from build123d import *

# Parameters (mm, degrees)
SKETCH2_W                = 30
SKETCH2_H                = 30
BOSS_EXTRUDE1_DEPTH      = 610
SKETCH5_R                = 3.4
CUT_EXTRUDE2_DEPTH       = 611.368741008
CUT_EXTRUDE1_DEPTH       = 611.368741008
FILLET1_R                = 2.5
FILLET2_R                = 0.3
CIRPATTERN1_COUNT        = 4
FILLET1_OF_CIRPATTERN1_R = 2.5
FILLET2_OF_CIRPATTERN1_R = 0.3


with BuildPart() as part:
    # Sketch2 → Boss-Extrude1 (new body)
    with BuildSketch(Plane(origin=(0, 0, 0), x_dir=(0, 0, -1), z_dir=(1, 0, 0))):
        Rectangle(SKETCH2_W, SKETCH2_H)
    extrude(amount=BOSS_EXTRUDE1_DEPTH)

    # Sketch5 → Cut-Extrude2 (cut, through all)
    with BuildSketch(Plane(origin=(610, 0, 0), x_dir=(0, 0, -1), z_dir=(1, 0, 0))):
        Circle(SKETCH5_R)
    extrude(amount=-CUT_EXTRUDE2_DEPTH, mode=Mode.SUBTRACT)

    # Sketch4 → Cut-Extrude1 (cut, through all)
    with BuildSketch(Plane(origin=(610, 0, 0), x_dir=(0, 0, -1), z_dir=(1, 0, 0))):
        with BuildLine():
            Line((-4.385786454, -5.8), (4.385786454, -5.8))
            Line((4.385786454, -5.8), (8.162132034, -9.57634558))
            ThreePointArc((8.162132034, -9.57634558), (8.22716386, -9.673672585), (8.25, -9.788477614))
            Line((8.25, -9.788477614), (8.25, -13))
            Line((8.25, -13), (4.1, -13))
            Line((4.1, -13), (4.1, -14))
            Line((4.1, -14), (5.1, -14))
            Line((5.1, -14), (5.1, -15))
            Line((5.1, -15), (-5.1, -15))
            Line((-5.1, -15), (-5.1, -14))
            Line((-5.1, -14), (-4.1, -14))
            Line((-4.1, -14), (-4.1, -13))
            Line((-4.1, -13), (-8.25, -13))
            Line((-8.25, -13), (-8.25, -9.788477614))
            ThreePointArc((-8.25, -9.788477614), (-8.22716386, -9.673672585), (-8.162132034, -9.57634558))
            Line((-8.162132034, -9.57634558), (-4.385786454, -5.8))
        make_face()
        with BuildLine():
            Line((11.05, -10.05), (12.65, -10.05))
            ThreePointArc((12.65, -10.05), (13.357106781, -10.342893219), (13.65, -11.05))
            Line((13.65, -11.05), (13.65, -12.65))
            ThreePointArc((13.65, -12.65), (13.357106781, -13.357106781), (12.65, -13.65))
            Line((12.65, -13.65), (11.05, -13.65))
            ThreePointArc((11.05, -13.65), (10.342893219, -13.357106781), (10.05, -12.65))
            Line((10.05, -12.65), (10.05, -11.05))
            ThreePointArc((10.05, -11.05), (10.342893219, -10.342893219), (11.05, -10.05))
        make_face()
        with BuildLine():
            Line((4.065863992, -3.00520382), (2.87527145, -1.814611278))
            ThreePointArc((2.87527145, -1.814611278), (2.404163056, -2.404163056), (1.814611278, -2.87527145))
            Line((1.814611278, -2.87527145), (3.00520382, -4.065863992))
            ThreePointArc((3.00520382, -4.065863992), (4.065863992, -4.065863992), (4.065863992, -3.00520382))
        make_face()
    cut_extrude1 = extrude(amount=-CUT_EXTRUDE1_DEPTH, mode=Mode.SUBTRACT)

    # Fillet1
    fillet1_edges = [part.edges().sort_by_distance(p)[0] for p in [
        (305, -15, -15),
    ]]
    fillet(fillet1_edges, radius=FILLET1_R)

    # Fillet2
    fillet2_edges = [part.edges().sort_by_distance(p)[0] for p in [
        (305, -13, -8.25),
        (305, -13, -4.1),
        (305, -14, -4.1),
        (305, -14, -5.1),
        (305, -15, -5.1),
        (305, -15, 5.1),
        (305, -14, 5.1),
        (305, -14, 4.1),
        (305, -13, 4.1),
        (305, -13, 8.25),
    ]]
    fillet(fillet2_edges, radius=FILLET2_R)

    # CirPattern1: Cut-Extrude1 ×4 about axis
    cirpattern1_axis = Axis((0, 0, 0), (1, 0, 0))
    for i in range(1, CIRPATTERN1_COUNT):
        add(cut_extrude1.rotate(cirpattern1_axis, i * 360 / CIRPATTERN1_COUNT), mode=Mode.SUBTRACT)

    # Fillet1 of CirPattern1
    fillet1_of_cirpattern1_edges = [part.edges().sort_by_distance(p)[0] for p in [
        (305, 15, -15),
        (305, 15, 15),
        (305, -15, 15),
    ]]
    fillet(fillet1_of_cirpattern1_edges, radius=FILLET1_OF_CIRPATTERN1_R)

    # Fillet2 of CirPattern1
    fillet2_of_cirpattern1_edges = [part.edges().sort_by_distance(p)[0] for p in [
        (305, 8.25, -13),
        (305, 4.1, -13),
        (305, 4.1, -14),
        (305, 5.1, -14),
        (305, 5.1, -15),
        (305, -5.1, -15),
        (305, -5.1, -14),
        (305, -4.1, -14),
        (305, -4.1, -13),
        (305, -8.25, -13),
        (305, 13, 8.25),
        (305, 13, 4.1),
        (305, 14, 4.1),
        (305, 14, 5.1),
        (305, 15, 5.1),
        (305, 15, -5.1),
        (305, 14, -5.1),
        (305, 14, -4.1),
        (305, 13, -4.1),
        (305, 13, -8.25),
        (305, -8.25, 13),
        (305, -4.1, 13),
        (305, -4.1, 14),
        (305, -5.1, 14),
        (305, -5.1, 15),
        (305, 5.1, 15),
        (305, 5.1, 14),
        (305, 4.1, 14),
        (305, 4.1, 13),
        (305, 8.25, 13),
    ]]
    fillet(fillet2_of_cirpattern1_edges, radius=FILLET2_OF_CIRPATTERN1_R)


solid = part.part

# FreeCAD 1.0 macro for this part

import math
import FreeCAD as App
import Part
import Sketcher
Q = App.Units.Quantity


def edges_at(feature, points):
    """Names of the edges that pass closest to the given points."""
    edges = feature.Shape.Edges
    near = lambda p: min(range(len(edges)), key=lambda i: edges[i].distToShape(Part.Vertex(*p))[0])
    return sorted({f"Edge{near(p) + 1}" for p in points})

doc = App.newDocument("Part")
params = doc.addObject("Spreadsheet::Sheet", "Params")
for row, (alias, value) in enumerate([
    ("sketch1_width", "30 mm"),
    ("pad1_length", "610 mm"),
    ("sketch2_diameter", "6.8 mm"),
    ("sketch3_radius", "1 mm"),
    ("sketch3_radius2", "0.3 mm"),
    ("sketch3_radius3", "3.4 mm"),
    ("sketch3_width", "1 mm"),
    ("sketch3_radius4", "0.75 mm"),
    ("fillet_radius", "2.5 mm"),
    ("fillet2_radius", "0.3 mm"),
    ("fillet3_radius", "2.5 mm"),
    ("fillet4_radius", "0.3 mm"),
], start=1):
    params.set(f"A{row}", alias)
    params.set(f"B{row}", "=" + value)
    params.setAlias(f"B{row}", alias)

body = doc.addObject("PartDesign::Body", "Body")

sketch1 = body.newObject("Sketcher::SketchObject", "Sketch")
sketch1.AttachmentSupport = (doc.getObject("YZ_Plane"), [""])
sketch1.MapMode = "FlatFace"
sketch1.addGeometry([
    Part.LineSegment(App.Vector(15, 15, 0), App.Vector(-15, 15, 0)),
    Part.LineSegment(App.Vector(-15, 15, 0), App.Vector(-15, -15, 0)),
    Part.LineSegment(App.Vector(-15, -15, 0), App.Vector(15, -15, 0)),
    Part.LineSegment(App.Vector(15, -15, 0), App.Vector(15, 15, 0)),
], False)
sketch1.addConstraint([
    Sketcher.Constraint("Coincident", 0, 2, 1, 1),
    Sketcher.Constraint("Coincident", 1, 2, 2, 1),
    Sketcher.Constraint("Coincident", 2, 2, 3, 1),
    Sketcher.Constraint("Coincident", 3, 2, 0, 1),
    Sketcher.Constraint("Horizontal", 0),
    Sketcher.Constraint("Vertical", 1),
    Sketcher.Constraint("Horizontal", 2),
    Sketcher.Constraint("Vertical", 3),
    Sketcher.Constraint("Symmetric", 0, 2, 2, 2, -1, 1),
    Sketcher.Constraint("Equal", 2, 1),
    Sketcher.Constraint("DistanceX", 0, 2, 0, 1, Q("30 mm")),
])
sketch1.setExpression("Constraints[10]", "Params.sketch1_width")
pad1 = body.newObject("PartDesign::Pad", "Pad")
pad1.Profile = sketch1
pad1.setExpression("Length", "Params.pad1_length")

sketch2 = body.newObject("Sketcher::SketchObject", "Sketch001")
sketch2.AttachmentSupport = (doc.getObject("YZ_Plane"), [""])
sketch2.MapMode = "FlatFace"
sketch2.AttachmentOffset = App.Placement(App.Vector(0, 0, 610), App.Rotation())
sketch2.addGeometry(Part.Circle(App.Vector(0, 0, 0), App.Vector(0, 0, 1), 3.4), False)
sketch2.addConstraint([
    Sketcher.Constraint("Coincident", 0, 3, -1, 1),
    Sketcher.Constraint("Diameter", 0, Q("6.8 mm")),
])
sketch2.setExpression("Constraints[1]", "Params.sketch2_diameter")
pocket1 = body.newObject("PartDesign::Pocket", "Pocket")
pocket1.Profile = sketch2
pocket1.Type = "ThroughAll"

sketch3 = body.newObject("Sketcher::SketchObject", "Sketch002")
sketch3.AttachmentSupport = (doc.getObject("YZ_Plane"), [""])
sketch3.MapMode = "FlatFace"
sketch3.AttachmentOffset = App.Placement(App.Vector(0, 0, 610), App.Rotation())
sketch3.addGeometry([
    Part.LineSegment(App.Vector(-5.8, -4.39, 0), App.Vector(-5.8, 4.39, 0)),
    Part.LineSegment(App.Vector(-5.8, 4.39, 0), App.Vector(-9.58, 8.16, 0)),
    Part.ArcOfCircle(Part.Circle(App.Vector(-9.79, 7.95, 0), App.Vector(0, 0, 1), 0.3), math.radians(45), math.radians(90)),
    Part.LineSegment(App.Vector(-9.79, 8.25, 0), App.Vector(-13, 8.25, 0)),
    Part.LineSegment(App.Vector(-13, 8.25, 0), App.Vector(-13, 4.1, 0)),
    Part.LineSegment(App.Vector(-13, 4.1, 0), App.Vector(-14, 4.1, 0)),
    Part.LineSegment(App.Vector(-14, 4.1, 0), App.Vector(-14, 5.1, 0)),
    Part.LineSegment(App.Vector(-14, 5.1, 0), App.Vector(-15, 5.1, 0)),
    Part.LineSegment(App.Vector(-15, 5.1, 0), App.Vector(-15, -5.1, 0)),
    Part.LineSegment(App.Vector(-15, -5.1, 0), App.Vector(-14, -5.1, 0)),
    Part.LineSegment(App.Vector(-14, -5.1, 0), App.Vector(-14, -4.1, 0)),
    Part.LineSegment(App.Vector(-14, -4.1, 0), App.Vector(-13, -4.1, 0)),
    Part.LineSegment(App.Vector(-13, -4.1, 0), App.Vector(-13, -8.25, 0)),
    Part.LineSegment(App.Vector(-13, -8.25, 0), App.Vector(-9.79, -8.25, 0)),
    Part.ArcOfCircle(Part.Circle(App.Vector(-9.79, -7.95, 0), App.Vector(0, 0, 1), 0.3), math.radians(-90), math.radians(-45)),
    Part.LineSegment(App.Vector(-9.58, -8.16, 0), App.Vector(-5.8, -4.39, 0)),
    Part.LineSegment(App.Vector(-10.05, -12.65, 0), App.Vector(-10.05, -11.05, 0)),
    Part.ArcOfCircle(Part.Circle(App.Vector(-11.05, -11.05, 0), App.Vector(0, 0, 1), 1), math.radians(0), math.radians(90)),
    Part.LineSegment(App.Vector(-11.05, -10.05, 0), App.Vector(-12.65, -10.05, 0)),
    Part.ArcOfCircle(Part.Circle(App.Vector(-12.65, -11.05, 0), App.Vector(0, 0, 1), 1), math.radians(90), math.radians(180)),
    Part.LineSegment(App.Vector(-13.65, -11.05, 0), App.Vector(-13.65, -12.65, 0)),
    Part.ArcOfCircle(Part.Circle(App.Vector(-12.65, -12.65, 0), App.Vector(0, 0, 1), 1), math.radians(-180), math.radians(-90)),
    Part.LineSegment(App.Vector(-12.65, -13.65, 0), App.Vector(-11.05, -13.65, 0)),
    Part.ArcOfCircle(Part.Circle(App.Vector(-11.05, -12.65, 0), App.Vector(0, 0, 1), 1), math.radians(-90), math.radians(0)),
    Part.LineSegment(App.Vector(-3.01, -4.07, 0), App.Vector(-1.81, -2.88, 0)),
    Part.ArcOfCircle(Part.Circle(App.Vector(0, 0, 0), App.Vector(0, 0, 1), 3.4), math.radians(-148), math.radians(-122)),
    Part.LineSegment(App.Vector(-2.88, -1.81, 0), App.Vector(-4.07, -3.01, 0)),
    Part.ArcOfCircle(Part.Circle(App.Vector(-3.54, -3.54, 0), App.Vector(0, 0, 1), 0.75), math.radians(135), math.radians(315)),
], False)
sketch3.addConstraint([
    Sketcher.Constraint("Coincident", 0, 2, 1, 1),
    Sketcher.Constraint("Tangent", 1, 2, 2, 1),
    Sketcher.Constraint("Tangent", 2, 2, 3, 1),
    Sketcher.Constraint("Coincident", 3, 2, 4, 1),
    Sketcher.Constraint("Coincident", 4, 2, 5, 1),
    Sketcher.Constraint("Coincident", 5, 2, 6, 1),
    Sketcher.Constraint("Coincident", 6, 2, 7, 1),
    Sketcher.Constraint("Coincident", 7, 2, 8, 1),
    Sketcher.Constraint("Coincident", 8, 2, 9, 1),
    Sketcher.Constraint("Coincident", 9, 2, 10, 1),
    Sketcher.Constraint("Coincident", 10, 2, 11, 1),
    Sketcher.Constraint("Coincident", 11, 2, 12, 1),
    Sketcher.Constraint("Coincident", 12, 2, 13, 1),
    Sketcher.Constraint("Tangent", 13, 2, 14, 1),
    Sketcher.Constraint("Tangent", 14, 2, 15, 1),
    Sketcher.Constraint("Coincident", 15, 2, 0, 1),
    Sketcher.Constraint("Tangent", 16, 2, 17, 1),
    Sketcher.Constraint("Tangent", 17, 2, 18, 1),
    Sketcher.Constraint("Tangent", 18, 2, 19, 1),
    Sketcher.Constraint("Tangent", 19, 2, 20, 1),
    Sketcher.Constraint("Tangent", 20, 2, 21, 1),
    Sketcher.Constraint("Tangent", 21, 2, 22, 1),
    Sketcher.Constraint("Tangent", 22, 2, 23, 1),
    Sketcher.Constraint("Tangent", 23, 2, 16, 1),
    Sketcher.Constraint("Coincident", 24, 2, 25, 2),
    Sketcher.Constraint("Coincident", 25, 1, 26, 1),
    Sketcher.Constraint("Tangent", 26, 2, 27, 1),
    Sketcher.Constraint("Tangent", 27, 2, 24, 1),
    Sketcher.Constraint("Vertical", 0),
    Sketcher.Constraint("Horizontal", 3),
    Sketcher.Constraint("Vertical", 4),
    Sketcher.Constraint("Horizontal", 5),
    Sketcher.Constraint("Vertical", 6),
    Sketcher.Constraint("Horizontal", 7),
    Sketcher.Constraint("Vertical", 8),
    Sketcher.Constraint("Horizontal", 9),
    Sketcher.Constraint("Vertical", 10),
    Sketcher.Constraint("Horizontal", 11),
    Sketcher.Constraint("Vertical", 12),
    Sketcher.Constraint("Horizontal", 13),
    Sketcher.Constraint("Vertical", 16),
    Sketcher.Constraint("Horizontal", 18),
    Sketcher.Constraint("Vertical", 20),
    Sketcher.Constraint("Horizontal", 22),
    Sketcher.Constraint("Coincident", 25, 3, -1, 1),
    Sketcher.Constraint("Equal", 2, 14),
    Sketcher.Constraint("Equal", 17, 19),
    Sketcher.Constraint("Equal", 19, 21),
    Sketcher.Constraint("Equal", 21, 23),
    Sketcher.Constraint("Symmetric", 2, 3, 14, 3, -1),
    Sketcher.Constraint("Symmetric", 6, 2, 9, 2, -1),
    Sketcher.Constraint("Symmetric", 4, 2, 11, 2, -1),
    Sketcher.Constraint("Perpendicular", 1, 15),
    Sketcher.Constraint("Parallel", 15, 24),
    Sketcher.Constraint("Parallel", 24, 26),
    Sketcher.Constraint("Vertical", 1, 2, 14, 2),
    Sketcher.Constraint("Equal", 5, 7),
    Sketcher.Constraint("Equal", 11, 6),
    Sketcher.Constraint("Equal", 22, 16),
    Sketcher.Constraint("Equal", 24, 26),
    Sketcher.Constraint("Radius", 17, Q("1 mm")),
    Sketcher.Constraint("Radius", 2, Q("0.3 mm")),
    Sketcher.Constraint("Radius", 25, Q("3.4 mm")),
    Sketcher.Constraint("DistanceX", 5, 2, 5, 1, Q("1 mm")),
    Sketcher.Constraint("Radius", 27, Q("0.75 mm")),
    Sketcher.Constraint("DistanceX", 18, 2, 18, 1, Q("1.6 mm")),
    Sketcher.Constraint("DistanceY", 8, 2, 8, 1, Q("10.2 mm")),
    Sketcher.Constraint("DistanceX", 3, 2, -1, 1, Q("13 mm")),
    Sketcher.Constraint("DistanceY", 17, 3, 2, 3, Q("19 mm")),
    Sketcher.Constraint("DistanceY", 4, 2, 4, 1, Q("4.15 mm")),
    Sketcher.Constraint("DistanceX", 0, 2, -1, 1, Q("5.8 mm")),
    Sketcher.Constraint("DistanceX", 17, 3, -1, 1, Q("11.05 mm")),
    Sketcher.Constraint("Distance", 1, Q("5.340559 mm")),
    Sketcher.Constraint("DistanceY", 27, 3, 0, 2, Q("7.92132 mm")),
])
sketch3.setExpression("Constraints[60]", "Params.sketch3_radius")
sketch3.setExpression("Constraints[61]", "Params.sketch3_radius2")
sketch3.setExpression("Constraints[62]", "Params.sketch3_radius3")
sketch3.setExpression("Constraints[63]", "Params.sketch3_width")
sketch3.setExpression("Constraints[64]", "Params.sketch3_radius4")
pocket2 = body.newObject("PartDesign::Pocket", "Pocket001")
pocket2.Profile = sketch3
pocket2.Type = "ThroughAll"
doc.recompute()

fillet = body.newObject("PartDesign::Fillet", "Fillet")
fillet.Base = (pocket2, edges_at(pocket2, [(305, -15, -15)]))
fillet.setExpression("Radius", "Params.fillet_radius")
doc.recompute()

fillet2 = body.newObject("PartDesign::Fillet", "Fillet001")
fillet2.Base = (fillet, edges_at(fillet, [
    (305, -13, -8.25),
    (305, -13, -4.1),
    (305, -14, -4.1),
    (305, -14, -5.1),
    (305, -15, -5.1),
    (305, -15, 5.1),
    (305, -14, 5.1),
    (305, -14, 4.1),
    (305, -13, 4.1),
    (305, -13, 8.25),
]))
fillet2.setExpression("Radius", "Params.fillet2_radius")
doc.recompute()

polarpattern = body.newObject("PartDesign::PolarPattern", "PolarPattern")
polarpattern.Originals = [pocket2]
polarpattern.Axis = (doc.getObject("X_Axis"), [""])
polarpattern.Angle = 360
polarpattern.Occurrences = 4
body.Tip = polarpattern
doc.recompute()

fillet3 = body.newObject("PartDesign::Fillet", "Fillet002")
fillet3.Base = (polarpattern, edges_at(polarpattern, [(305, 15, -15), (305, 15, 15), (305, -15, 15)]))
fillet3.setExpression("Radius", "Params.fillet3_radius")
doc.recompute()

fillet4 = body.newObject("PartDesign::Fillet", "Fillet003")
fillet4.Base = (fillet3, edges_at(fillet3, [
    (305, 8.25, -13),
    (305, 4.1, -13),
    (305, 4.1, -14),
    (305, 5.1, -14),
    (305, 5.1, -15),
    (305, -5.1, -15),
    (305, -5.1, -14),
    (305, -4.1, -14),
    (305, -4.1, -13),
    (305, -8.25, -13),
    (305, 13, 8.25),
    (305, 13, 4.1),
    (305, 14, 4.1),
    (305, 14, 5.1),
    (305, 15, 5.1),
    (305, 15, -5.1),
    (305, 14, -5.1),
    (305, 14, -4.1),
    (305, 13, -4.1),
    (305, 13, -8.25),
    (305, -8.25, 13),
    (305, -4.1, 13),
    (305, -4.1, 14),
    (305, -5.1, 14),
    (305, -5.1, 15),
    (305, 5.1, 15),
    (305, 5.1, 14),
    (305, 4.1, 14),
    (305, 4.1, 13),
    (305, 8.25, 13),
]))
fillet4.setExpression("Radius", "Params.fillet4_radius")

doc.recompute()
